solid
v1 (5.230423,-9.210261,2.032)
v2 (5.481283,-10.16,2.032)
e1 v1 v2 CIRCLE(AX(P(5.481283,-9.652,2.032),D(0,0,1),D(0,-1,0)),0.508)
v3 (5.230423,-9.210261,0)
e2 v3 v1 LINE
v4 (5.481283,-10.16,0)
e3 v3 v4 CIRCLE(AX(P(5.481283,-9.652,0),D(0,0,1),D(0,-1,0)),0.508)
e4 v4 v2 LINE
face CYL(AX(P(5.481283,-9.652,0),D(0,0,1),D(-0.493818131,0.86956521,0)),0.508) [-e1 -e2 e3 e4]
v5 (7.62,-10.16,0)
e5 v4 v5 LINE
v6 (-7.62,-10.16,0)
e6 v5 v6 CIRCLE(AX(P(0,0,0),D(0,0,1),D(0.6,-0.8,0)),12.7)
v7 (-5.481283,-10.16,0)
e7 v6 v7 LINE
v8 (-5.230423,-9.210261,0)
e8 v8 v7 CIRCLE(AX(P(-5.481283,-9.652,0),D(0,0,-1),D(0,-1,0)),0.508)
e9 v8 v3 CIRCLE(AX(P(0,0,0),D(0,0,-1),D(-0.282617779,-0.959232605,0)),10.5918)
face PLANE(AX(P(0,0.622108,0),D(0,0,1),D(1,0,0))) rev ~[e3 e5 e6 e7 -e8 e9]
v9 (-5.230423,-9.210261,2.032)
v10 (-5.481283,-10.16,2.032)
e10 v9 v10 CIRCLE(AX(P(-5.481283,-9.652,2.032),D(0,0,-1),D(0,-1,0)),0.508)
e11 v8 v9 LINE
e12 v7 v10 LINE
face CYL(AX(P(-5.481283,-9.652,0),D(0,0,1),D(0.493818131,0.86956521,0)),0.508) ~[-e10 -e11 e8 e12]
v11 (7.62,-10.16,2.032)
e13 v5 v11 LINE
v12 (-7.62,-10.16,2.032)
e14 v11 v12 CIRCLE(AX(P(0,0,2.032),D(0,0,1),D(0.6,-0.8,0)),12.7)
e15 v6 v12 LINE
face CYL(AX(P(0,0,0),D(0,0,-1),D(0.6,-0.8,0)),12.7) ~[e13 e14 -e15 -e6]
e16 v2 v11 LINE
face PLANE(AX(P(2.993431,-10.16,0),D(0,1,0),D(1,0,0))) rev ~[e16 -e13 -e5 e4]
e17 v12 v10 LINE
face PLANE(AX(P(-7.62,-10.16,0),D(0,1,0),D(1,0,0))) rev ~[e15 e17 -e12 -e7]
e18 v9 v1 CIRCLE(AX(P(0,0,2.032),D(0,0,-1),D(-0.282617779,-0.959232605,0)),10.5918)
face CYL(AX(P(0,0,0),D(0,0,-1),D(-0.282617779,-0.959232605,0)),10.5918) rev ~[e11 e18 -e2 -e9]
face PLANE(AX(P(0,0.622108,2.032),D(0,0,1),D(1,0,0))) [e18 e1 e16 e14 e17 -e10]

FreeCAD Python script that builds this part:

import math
import FreeCAD as App
import Part
import Sketcher
Q = App.Units.Quantity


def edges_at(feature, points):
    """Names of the edges that pass closest to the given points."""
    edges = feature.Shape.Edges
    near = lambda p: min(range(len(edges)), key=lambda i: edges[i].distToShape(Part.Vertex(*p))[0])
    return sorted({f"Edge{near(p) + 1}" for p in points})

doc = App.newDocument("Part")
body = doc.addObject("PartDesign::Body", "Body")

sketch1 = doc.addObject("Sketcher::SketchObject", "Sketch")
body.addObject(sketch1)
sketch1.AttachmentSupport = (doc.XY_Plane, [""])
sketch1.MapMode = "FlatFace"
sketch1.addGeometry([
    Part.ArcOfCircle(Part.Circle(App.Vector(0, 0, 0), App.Vector(0, 0, 1), 10.6), math.radians(-74), math.radians(254)),
    Part.LineSegment(App.Vector(3, -10.2, 0), App.Vector(7.6, -10.2, 0)),
    Part.ArcOfCircle(Part.Circle(App.Vector(0, 0, 0), App.Vector(0, 0, 1), 12.7), math.radians(-53), math.radians(233)),
    Part.LineSegment(App.Vector(-7.6, -10.2, 0), App.Vector(-3, -10.2, 0)),
], False)
sketch1.addConstraint([
    Sketcher.Constraint("Coincident", 0, 1, 1, 1),
    Sketcher.Constraint("Coincident", 1, 2, 2, 1),
    Sketcher.Constraint("Coincident", 2, 2, 3, 1),
    Sketcher.Constraint("Coincident", 3, 2, 0, 2),
    Sketcher.Constraint("Horizontal", 1),
    Sketcher.Constraint("Horizontal", 3),
    Sketcher.Constraint("Coincident", 0, 3, -1, 1),
    Sketcher.Constraint("Coincident", 2, 3, -1, 1),
    Sketcher.Constraint("Horizontal", 1, 2, 2, 2),
    Sketcher.Constraint("Radius", 2, Q("0.5 in")),
    Sketcher.Constraint("Radius", 0, Q("0.417 in")),
    Sketcher.Constraint("DistanceY", 0, 1, -1, 1, Q("0.4 in")),
])
pad1 = doc.addObject("PartDesign::Pad", "Pad")
body.addObject(pad1)
pad1.Profile = sketch1
pad1.Length = Q("0.08 in")
doc.recompute()

fillet = doc.addObject("PartDesign::Fillet", "Fillet")
body.addObject(fillet)
fillet.Base = (pad1, edges_at(pad1, [(-2.993, -10.16, 1.016), (2.993, -10.16, 1.016)]))
fillet.Radius = Q("0.02 in")

doc.recompute()
